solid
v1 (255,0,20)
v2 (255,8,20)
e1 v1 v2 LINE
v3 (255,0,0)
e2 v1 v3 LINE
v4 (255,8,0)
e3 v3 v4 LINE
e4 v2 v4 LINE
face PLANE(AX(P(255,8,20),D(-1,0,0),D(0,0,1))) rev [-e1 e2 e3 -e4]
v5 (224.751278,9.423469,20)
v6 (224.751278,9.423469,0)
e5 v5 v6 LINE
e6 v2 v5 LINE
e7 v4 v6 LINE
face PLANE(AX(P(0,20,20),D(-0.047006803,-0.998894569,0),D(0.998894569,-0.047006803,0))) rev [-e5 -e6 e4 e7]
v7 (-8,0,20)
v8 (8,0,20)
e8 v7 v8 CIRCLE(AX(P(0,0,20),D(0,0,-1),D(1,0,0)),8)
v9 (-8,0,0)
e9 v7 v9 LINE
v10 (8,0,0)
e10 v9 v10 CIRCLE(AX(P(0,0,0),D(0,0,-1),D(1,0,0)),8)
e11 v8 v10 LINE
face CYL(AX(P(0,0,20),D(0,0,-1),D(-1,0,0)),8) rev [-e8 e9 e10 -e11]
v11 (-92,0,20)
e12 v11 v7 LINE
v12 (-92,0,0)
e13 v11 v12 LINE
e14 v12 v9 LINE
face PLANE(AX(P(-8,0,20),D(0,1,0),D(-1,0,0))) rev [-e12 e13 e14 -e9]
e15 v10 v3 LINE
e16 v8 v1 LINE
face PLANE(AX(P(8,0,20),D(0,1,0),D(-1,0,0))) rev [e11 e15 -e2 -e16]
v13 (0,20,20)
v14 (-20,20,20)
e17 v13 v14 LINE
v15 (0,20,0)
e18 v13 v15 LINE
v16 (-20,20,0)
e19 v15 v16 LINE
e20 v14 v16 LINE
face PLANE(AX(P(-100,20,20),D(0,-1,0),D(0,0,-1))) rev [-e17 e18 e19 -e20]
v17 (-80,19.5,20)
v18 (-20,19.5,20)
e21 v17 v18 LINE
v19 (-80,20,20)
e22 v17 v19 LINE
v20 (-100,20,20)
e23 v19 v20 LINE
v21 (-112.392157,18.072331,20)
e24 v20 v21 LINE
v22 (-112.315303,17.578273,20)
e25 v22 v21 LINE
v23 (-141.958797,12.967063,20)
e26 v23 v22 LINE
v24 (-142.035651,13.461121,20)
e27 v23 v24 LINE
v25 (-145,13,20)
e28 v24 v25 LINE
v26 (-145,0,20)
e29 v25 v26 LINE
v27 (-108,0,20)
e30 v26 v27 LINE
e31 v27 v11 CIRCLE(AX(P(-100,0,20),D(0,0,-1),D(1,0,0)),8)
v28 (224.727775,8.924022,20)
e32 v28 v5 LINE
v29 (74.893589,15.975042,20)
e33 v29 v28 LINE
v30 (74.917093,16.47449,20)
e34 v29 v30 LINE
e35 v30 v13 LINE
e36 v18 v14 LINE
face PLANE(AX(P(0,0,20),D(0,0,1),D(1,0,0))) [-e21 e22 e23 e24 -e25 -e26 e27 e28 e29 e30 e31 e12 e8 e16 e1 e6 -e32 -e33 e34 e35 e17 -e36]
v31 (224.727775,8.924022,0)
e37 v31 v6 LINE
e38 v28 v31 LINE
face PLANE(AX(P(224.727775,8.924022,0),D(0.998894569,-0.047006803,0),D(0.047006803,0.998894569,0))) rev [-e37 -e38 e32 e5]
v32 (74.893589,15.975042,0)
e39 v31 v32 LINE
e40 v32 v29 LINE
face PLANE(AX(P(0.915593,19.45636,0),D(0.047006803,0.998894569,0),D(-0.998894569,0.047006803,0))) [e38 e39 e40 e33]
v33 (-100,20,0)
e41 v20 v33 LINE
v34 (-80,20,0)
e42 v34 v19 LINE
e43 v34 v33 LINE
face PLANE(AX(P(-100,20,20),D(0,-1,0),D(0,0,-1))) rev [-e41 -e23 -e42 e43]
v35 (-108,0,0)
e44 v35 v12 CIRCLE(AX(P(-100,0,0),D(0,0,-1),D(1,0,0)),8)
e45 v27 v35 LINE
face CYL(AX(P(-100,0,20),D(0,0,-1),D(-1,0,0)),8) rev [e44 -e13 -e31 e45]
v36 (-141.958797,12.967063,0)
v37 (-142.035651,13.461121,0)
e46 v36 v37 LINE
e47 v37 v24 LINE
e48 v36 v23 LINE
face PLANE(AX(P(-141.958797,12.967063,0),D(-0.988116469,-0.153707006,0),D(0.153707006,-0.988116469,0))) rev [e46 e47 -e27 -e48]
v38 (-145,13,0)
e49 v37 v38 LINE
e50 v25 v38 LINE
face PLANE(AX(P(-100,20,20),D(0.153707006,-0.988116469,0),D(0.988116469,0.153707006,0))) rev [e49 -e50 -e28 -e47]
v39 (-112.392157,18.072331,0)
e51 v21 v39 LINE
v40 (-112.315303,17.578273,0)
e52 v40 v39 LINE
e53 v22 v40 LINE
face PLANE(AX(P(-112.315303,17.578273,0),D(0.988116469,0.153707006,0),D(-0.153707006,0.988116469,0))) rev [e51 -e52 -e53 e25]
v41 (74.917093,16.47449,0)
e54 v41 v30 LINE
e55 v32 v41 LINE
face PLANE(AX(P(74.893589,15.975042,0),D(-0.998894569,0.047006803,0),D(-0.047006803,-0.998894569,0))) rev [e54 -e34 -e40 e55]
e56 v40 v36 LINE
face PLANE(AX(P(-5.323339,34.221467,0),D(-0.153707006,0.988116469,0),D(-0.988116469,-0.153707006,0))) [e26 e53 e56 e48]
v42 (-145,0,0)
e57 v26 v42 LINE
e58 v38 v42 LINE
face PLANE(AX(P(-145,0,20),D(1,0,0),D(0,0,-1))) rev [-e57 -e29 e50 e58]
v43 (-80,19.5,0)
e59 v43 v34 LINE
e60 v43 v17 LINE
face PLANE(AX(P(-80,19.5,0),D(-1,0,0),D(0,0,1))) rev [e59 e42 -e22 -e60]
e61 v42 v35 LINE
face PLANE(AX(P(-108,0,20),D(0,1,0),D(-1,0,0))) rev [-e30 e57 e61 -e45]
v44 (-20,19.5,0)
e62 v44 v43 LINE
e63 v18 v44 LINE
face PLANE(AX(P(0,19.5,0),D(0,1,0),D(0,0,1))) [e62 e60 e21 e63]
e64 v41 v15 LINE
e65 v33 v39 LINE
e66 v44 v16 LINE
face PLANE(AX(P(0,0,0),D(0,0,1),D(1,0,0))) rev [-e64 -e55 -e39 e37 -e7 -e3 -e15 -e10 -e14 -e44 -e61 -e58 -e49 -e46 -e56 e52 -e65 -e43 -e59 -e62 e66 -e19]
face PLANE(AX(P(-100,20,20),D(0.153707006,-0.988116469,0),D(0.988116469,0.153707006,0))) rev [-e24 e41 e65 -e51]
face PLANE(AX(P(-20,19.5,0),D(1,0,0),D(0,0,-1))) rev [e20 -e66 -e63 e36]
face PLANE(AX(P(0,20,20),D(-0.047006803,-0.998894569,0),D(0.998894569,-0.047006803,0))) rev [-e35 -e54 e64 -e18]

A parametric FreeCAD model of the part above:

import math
import FreeCAD as App
import Part
import Sketcher

V = App.Vector
Q = App.Units.Quantity


def add_polygon(sketch, points):
    """Adds a closed chain of lines whose ends are joined by coincident constraints."""
    first, n = sketch.GeometryCount, len(points)
    for a, b in zip(points, points[1:] + points[:1]):
        sketch.addGeometry(Part.LineSegment(App.Vector(*a, 0), App.Vector(*b, 0)), False)
    for i in range(n):
        sketch.addConstraint(Sketcher.Constraint("Coincident", first + i, 2, first + (i + 1) % n, 1))

doc = App.newDocument("Part")
body = doc.addObject("PartDesign::Body", "Body")

# Sketch on XY plane
sketch1 = doc.addObject("Sketcher::SketchObject", "Sketch")
body.addObject(sketch1)
sketch1.AttachmentSupport = (doc.XY_Plane, [""])
sketch1.MapMode = "FlatFace"
sketch1.addGeometry([
    Part.LineSegment(V(-92, 0, 0), V(-8, 0, 0)),  # 0
    Part.ArcOfCircle(Part.Circle(V(0, 0, 0), V(0, 0, 1), 8), math.radians(0), math.radians(180)),  # 1
    Part.LineSegment(V(8, 0, 0), V(255, 0, 0)),  # 2
    Part.LineSegment(V(255, 0, 0), V(255, 8, 0)),  # 3
    Part.LineSegment(V(255, 8, 0), V(0, 20, 0)),  # 4
    Part.LineSegment(V(0, 20, 0), V(-100, 20, 0)),  # 5
    Part.LineSegment(V(-100, 20, 0), V(-145, 13, 0)),  # 6
    Part.LineSegment(V(-145, 13, 0), V(-145, 0, 0)),  # 7
    Part.LineSegment(V(-145, 0, 0), V(-108, 0, 0)),  # 8
    Part.ArcOfCircle(Part.Circle(V(-100, 0, 0), V(0, 0, 1), 8), math.radians(0), math.radians(180)),  # 9
], False)
sketch1.addConstraint([
    Sketcher.Constraint("Coincident", 0, 2, 1, 2),
    Sketcher.Constraint("Coincident", 1, 1, 2, 1),
    Sketcher.Constraint("Coincident", 2, 2, 3, 1),
    Sketcher.Constraint("Coincident", 3, 2, 4, 1),
    Sketcher.Constraint("Coincident", 4, 2, 5, 1),
    Sketcher.Constraint("Coincident", 5, 2, 6, 1),
    Sketcher.Constraint("Coincident", 6, 2, 7, 1),
    Sketcher.Constraint("Coincident", 7, 2, 8, 1),
    Sketcher.Constraint("Coincident", 8, 2, 9, 2),
    Sketcher.Constraint("Coincident", 9, 1, 0, 1),
    Sketcher.Constraint("Horizontal", 0),
    Sketcher.Constraint("Horizontal", 2),
    Sketcher.Constraint("Vertical", 3),
    Sketcher.Constraint("Horizontal", 5),
    Sketcher.Constraint("Vertical", 7),
    Sketcher.Constraint("Horizontal", 8),
    Sketcher.Constraint("Coincident", 1, 3, -1, 1),
    Sketcher.Constraint("Equal", 1, 9),
    Sketcher.Constraint("PointOnObject", 9, 3, -1),
    Sketcher.Constraint("PointOnObject", 0, 2, -1),
    Sketcher.Constraint("PointOnObject", 1, 1, -1),
    Sketcher.Constraint("PointOnObject", 4, 2, -2),
    Sketcher.Constraint("PointOnObject", 7, 2, -1),
    Sketcher.Constraint("Vertical", 9, 3, 5, 2),
    Sketcher.Constraint("Radius", 1, Q("8 mm")),
    Sketcher.Constraint("DistanceX", 0, 1, 0, 2, Q("84 mm")),
    Sketcher.Constraint("DistanceX", 2, 1, 2, 2, Q("247 mm")),
    Sketcher.Constraint("DistanceX", 8, 1, 8, 2, Q("37 mm")),
    Sketcher.Constraint("DistanceY", 3, 1, 3, 2, Q("8 mm")),
    Sketcher.Constraint("DistanceY", 7, 2, 7, 1, Q("13 mm")),
    Sketcher.Constraint("DistanceY", -1, 1, 4, 2, Q("20 mm")),
])
pad1 = doc.addObject("PartDesign::Pad", "Pad")
body.addObject(pad1)
pad1.Profile = sketch1
pad1.Length = 20

# Sketch on an angled plane
sketch2 = doc.addObject("Sketcher::SketchObject", "Sketch001")
body.addObject(sketch2)
sketch2.Placement = App.Placement(V(0.939097, 19.955807, 0), App.Rotation(V(0.998894569, -0.047006803, 0), V(0, 0, -1), V(0.047006803, 0.998894569, 0), "ZXY"))
add_polygon(sketch2, [(74, 0), (74, -20), (224, -20), (224, 0)])  # lines 0-3
sketch2.addConstraint([
    Sketcher.Constraint("Vertical", 0),
    Sketcher.Constraint("Horizontal", 1),
    Sketcher.Constraint("Vertical", 2),
    Sketcher.Constraint("Horizontal", 3),
    Sketcher.Constraint("PointOnObject", 2, 2, -1),
    Sketcher.Constraint("DistanceX", 1, 1, 1, 2, Q("150 mm")),
    Sketcher.Constraint("DistanceY", 0, 2, 0, 1, Q("20 mm")),
    Sketcher.Constraint("DistanceX", -1, 1, 0, 2, Q("74.059864 mm")),
])
pocket1 = doc.addObject("PartDesign::Pocket", "Pocket")
body.addObject(pocket1)
pocket1.Profile = sketch2
pocket1.Length = 0.5

# Sketch on XZ plane
sketch3 = doc.addObject("Sketcher::SketchObject", "Sketch002")
body.addObject(sketch3)
sketch3.AttachmentSupport = (doc.XZ_Plane, [""])
sketch3.MapMode = "FlatFace"
sketch3.AttachmentOffset = App.Placement(V(0, 0, -20), App.Rotation())
add_polygon(sketch3, [(-80, 0), (-80, 20), (-20, 20), (-20, 0)])  # lines 0-3
sketch3.addConstraint([
    Sketcher.Constraint("Vertical", 0),
    Sketcher.Constraint("Horizontal", 1),
    Sketcher.Constraint("Vertical", 2),
    Sketcher.Constraint("Horizontal", 3),
    Sketcher.Constraint("PointOnObject", 2, 2, -1),
    Sketcher.Constraint("DistanceX", 1, 1, 1, 2, Q("60 mm")),
    Sketcher.Constraint("DistanceY", 0, 1, 0, 2, Q("20 mm")),
    Sketcher.Constraint("DistanceX", 0, 2, -1, 1, Q("80 mm")),
])
pocket2 = doc.addObject("PartDesign::Pocket", "Pocket001")
body.addObject(pocket2)
pocket2.Profile = sketch3
pocket2.Length = 0.5
pocket2.Reversed = True

# Sketch on an angled plane
sketch4 = doc.addObject("Sketcher::SketchObject", "Sketch003")
body.addObject(sketch4)
sketch4.Placement = App.Placement(V(-5.400193, 34.715526, 0), App.Rotation(V(0.988116469, 0.153707006, 0), V(0, 0, -1), V(-0.153707006, 0.988116469, 0), "ZXY"))
add_polygon(sketch4, [(-138, 0), (-138, -20), (-108, -20), (-108, 0)])  # lines 0-3
sketch4.addConstraint([
    Sketcher.Constraint("Vertical", 0),
    Sketcher.Constraint("Horizontal", 1),
    Sketcher.Constraint("Vertical", 2),
    Sketcher.Constraint("Horizontal", 3),
    Sketcher.Constraint("PointOnObject", 2, 2, -1),
    Sketcher.Constraint("DistanceX", 1, 1, 1, 2, Q("30 mm")),
    Sketcher.Constraint("DistanceY", 0, 2, 0, 1, Q("20 mm")),
    Sketcher.Constraint("DistanceX", 0, 2, -1, 1, Q("138.278697 mm")),
])
pocket3 = doc.addObject("PartDesign::Pocket", "Pocket002")
body.addObject(pocket3)
pocket3.Profile = sketch4
pocket3.Length = 0.5

doc.recompute()
